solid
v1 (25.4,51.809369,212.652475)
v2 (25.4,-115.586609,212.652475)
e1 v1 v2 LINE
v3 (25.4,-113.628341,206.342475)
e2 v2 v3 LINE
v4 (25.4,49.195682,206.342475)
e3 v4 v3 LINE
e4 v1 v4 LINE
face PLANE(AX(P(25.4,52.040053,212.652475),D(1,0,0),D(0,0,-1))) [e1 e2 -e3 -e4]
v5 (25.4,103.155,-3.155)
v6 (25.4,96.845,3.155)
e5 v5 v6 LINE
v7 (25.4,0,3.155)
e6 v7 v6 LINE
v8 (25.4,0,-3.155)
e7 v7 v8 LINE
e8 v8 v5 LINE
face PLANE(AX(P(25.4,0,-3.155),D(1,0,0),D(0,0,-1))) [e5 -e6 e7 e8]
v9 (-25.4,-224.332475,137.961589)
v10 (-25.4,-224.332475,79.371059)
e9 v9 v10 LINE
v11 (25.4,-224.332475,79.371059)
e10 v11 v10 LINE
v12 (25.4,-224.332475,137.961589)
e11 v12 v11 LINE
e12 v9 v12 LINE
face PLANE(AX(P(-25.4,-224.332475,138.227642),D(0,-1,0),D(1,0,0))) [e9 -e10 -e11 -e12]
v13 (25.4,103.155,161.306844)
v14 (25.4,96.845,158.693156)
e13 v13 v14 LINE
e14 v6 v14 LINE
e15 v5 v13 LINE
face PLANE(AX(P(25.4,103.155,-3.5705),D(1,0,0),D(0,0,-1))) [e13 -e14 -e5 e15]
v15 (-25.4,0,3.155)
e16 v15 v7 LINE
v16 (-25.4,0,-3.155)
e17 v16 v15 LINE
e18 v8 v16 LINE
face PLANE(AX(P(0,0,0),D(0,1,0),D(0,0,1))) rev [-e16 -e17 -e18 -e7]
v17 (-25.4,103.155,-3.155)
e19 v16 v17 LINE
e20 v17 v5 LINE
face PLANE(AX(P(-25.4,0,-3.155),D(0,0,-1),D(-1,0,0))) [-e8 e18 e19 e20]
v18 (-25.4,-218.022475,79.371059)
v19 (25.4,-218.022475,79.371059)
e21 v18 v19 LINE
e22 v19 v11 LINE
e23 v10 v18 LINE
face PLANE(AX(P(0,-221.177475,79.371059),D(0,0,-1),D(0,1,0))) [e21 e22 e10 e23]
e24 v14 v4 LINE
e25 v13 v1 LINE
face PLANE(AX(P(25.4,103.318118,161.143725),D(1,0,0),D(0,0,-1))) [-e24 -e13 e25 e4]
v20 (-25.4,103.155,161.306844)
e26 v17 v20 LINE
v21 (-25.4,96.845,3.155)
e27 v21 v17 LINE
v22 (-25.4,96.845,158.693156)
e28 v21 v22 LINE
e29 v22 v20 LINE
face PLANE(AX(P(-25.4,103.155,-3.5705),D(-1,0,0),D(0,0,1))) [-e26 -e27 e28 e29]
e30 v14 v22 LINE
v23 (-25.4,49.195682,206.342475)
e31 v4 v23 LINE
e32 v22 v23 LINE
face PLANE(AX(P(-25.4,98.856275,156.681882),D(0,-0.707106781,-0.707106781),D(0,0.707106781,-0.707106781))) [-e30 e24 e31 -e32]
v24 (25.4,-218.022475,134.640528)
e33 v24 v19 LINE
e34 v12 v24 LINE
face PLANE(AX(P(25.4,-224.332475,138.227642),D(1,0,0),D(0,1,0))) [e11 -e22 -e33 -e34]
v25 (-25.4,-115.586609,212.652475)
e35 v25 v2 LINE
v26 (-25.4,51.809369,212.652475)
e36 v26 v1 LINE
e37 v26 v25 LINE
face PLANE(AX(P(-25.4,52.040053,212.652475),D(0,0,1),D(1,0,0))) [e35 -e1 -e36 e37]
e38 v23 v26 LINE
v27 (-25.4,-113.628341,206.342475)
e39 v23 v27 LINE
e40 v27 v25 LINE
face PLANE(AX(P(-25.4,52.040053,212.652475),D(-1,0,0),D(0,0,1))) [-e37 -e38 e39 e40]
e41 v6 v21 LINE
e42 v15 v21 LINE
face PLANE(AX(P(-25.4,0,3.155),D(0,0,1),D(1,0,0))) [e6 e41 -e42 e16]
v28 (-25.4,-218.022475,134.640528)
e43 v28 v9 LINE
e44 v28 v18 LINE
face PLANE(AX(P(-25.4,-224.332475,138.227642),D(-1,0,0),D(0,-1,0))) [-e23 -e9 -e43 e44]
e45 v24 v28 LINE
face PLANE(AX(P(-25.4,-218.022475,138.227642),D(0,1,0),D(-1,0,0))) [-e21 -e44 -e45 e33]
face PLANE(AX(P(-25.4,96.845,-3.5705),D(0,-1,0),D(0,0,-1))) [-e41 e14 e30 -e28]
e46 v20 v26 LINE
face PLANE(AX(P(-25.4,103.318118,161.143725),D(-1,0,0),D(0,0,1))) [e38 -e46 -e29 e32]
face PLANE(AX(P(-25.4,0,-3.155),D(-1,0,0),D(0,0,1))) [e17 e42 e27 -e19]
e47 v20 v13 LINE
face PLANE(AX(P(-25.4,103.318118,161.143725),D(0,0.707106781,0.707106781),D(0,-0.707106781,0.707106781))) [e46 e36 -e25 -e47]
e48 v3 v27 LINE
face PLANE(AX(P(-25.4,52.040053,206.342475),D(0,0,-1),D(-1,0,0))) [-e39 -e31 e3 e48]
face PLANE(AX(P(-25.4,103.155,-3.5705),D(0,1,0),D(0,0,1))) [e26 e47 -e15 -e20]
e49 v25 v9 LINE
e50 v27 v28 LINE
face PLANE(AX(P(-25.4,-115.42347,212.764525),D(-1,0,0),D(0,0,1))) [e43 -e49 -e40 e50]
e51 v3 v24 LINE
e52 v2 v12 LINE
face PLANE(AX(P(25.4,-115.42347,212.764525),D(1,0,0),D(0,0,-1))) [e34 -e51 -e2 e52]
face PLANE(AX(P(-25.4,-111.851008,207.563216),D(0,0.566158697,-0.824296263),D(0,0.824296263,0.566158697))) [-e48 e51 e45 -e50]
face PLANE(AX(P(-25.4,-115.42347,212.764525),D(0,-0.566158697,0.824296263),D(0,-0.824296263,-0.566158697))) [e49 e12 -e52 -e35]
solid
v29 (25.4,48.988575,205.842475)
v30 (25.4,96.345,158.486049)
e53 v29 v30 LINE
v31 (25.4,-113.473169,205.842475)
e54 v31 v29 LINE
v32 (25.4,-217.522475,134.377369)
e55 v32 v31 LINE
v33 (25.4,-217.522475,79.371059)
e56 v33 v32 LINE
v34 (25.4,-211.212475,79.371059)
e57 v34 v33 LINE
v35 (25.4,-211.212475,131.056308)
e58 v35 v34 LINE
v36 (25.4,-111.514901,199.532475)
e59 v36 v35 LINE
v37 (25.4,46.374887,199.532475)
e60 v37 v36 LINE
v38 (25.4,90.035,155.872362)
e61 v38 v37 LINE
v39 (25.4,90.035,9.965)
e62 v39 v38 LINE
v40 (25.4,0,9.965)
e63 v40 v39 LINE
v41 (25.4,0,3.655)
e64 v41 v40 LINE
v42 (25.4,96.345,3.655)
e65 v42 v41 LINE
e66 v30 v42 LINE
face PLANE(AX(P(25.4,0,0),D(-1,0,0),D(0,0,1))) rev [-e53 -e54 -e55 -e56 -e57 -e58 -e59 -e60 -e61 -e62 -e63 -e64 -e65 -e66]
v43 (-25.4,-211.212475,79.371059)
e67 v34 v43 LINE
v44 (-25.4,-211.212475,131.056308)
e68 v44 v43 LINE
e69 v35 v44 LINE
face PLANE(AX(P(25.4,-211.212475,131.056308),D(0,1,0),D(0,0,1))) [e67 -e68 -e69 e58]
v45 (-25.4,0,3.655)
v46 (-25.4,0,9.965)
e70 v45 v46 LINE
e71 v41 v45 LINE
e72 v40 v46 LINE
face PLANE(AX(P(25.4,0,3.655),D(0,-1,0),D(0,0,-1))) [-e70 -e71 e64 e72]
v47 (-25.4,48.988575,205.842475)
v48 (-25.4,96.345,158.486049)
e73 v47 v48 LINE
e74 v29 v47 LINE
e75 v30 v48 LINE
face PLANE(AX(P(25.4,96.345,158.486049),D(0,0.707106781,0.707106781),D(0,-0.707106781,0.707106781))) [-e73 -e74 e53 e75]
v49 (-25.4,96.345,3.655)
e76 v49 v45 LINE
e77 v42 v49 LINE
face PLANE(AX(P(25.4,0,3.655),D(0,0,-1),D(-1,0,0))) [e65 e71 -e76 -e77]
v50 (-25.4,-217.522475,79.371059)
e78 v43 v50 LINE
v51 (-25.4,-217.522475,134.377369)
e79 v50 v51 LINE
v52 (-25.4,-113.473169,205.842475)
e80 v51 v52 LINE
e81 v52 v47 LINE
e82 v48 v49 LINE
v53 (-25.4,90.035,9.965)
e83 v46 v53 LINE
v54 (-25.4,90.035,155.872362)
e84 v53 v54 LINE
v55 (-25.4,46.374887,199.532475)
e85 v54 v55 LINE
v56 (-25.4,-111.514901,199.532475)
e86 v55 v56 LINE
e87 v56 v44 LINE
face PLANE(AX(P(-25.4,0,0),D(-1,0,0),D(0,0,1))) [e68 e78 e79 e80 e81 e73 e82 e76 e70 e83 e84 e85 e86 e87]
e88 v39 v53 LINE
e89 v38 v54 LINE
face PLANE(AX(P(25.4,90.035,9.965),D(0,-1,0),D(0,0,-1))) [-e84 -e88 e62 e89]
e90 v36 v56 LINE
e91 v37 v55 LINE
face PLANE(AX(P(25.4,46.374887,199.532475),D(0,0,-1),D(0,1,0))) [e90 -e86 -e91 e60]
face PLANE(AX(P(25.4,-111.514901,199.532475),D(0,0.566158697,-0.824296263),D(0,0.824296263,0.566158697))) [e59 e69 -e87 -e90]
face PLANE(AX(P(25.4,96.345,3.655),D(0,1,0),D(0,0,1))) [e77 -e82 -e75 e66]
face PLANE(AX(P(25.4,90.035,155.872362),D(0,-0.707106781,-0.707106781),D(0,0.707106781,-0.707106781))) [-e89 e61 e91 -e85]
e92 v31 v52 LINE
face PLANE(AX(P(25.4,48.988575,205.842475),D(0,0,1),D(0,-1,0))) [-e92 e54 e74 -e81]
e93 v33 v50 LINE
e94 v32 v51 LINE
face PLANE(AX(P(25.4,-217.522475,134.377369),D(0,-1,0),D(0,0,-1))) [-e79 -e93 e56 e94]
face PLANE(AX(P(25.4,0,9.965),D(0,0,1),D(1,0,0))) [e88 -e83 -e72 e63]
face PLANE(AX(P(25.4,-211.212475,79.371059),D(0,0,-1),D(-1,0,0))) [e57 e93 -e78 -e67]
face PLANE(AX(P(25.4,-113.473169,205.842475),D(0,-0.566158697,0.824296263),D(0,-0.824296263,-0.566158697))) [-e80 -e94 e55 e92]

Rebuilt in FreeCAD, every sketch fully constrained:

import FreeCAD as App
import Part
import Sketcher
Q = App.Units.Quantity

doc = App.newDocument("Part")
body = doc.addObject("PartDesign::Body", "Body")

# Sketch on XZ plane
sketch1 = body.newObject("Sketcher::SketchObject", "Sketch")
sketch1.AttachmentSupport = (doc.getObject("XZ_Plane"), [""])
sketch1.MapMode = "FlatFace"
sketch1.addGeometry([
    Part.LineSegment(App.Vector(-25.4, -3.155, 0), App.Vector(-25.4, 3.155, 0)),
    Part.LineSegment(App.Vector(-25.4, 3.155, 0), App.Vector(25.4, 3.155, 0)),
    Part.LineSegment(App.Vector(25.4, 3.155, 0), App.Vector(25.4, -3.155, 0)),
    Part.LineSegment(App.Vector(25.4, -3.155, 0), App.Vector(-25.4, -3.155, 0)),
], False)
sketch1.addConstraint([
    Sketcher.Constraint("Coincident", 0, 2, 1, 1),
    Sketcher.Constraint("Coincident", 1, 2, 2, 1),
    Sketcher.Constraint("Coincident", 2, 2, 3, 1),
    Sketcher.Constraint("Coincident", 3, 2, 0, 1),
    Sketcher.Constraint("Vertical", 0),
    Sketcher.Constraint("Horizontal", 1),
    Sketcher.Constraint("Vertical", 2),
    Sketcher.Constraint("Horizontal", 3),
    Sketcher.Constraint("Symmetric", 0, 2, 2, 2, -1, 1),
    Sketcher.Constraint("DistanceX", 1, 1, 1, 2, 50.8),
    Sketcher.Constraint("DistanceY", 0, 1, 0, 2, 6.31),
])

# Sketch on YZ plane
sketch2 = body.newObject("Sketcher::SketchObject", "Sketch001")
sketch2.AttachmentSupport = (doc.getObject("YZ_Plane"), [""])
sketch2.MapMode = "FlatFace"
sketch2.addGeometry([
    Part.LineSegment(App.Vector(0, 0, 0), App.Vector(100, 0, 0)),  # 0
    Part.LineSegment(App.Vector(100, 0, 0), App.Vector(100, 160, 0)),  # 1
    Part.LineSegment(App.Vector(100, 160, 0), App.Vector(50.502525, 209.497475, 0)),  # 2
    Part.LineSegment(App.Vector(50.502525, 209.497475, 0), App.Vector(-114.607475, 209.497475, 0)),  # 3
    Part.LineSegment(App.Vector(-114.607475, 209.497475, 0), App.Vector(-221.177475, 136.301059, 0)),  # 4
    Part.LineSegment(App.Vector(-221.177475, 136.301059, 0), App.Vector(-221.177475, 79.371059, 0)),  # 5
], False)
sketch2.addConstraint([
    Sketcher.Constraint("Coincident", 0, 2, 1, 1),
    Sketcher.Constraint("Coincident", 1, 2, 2, 1),
    Sketcher.Constraint("Coincident", 2, 2, 3, 1),
    Sketcher.Constraint("Coincident", 3, 2, 4, 1),
    Sketcher.Constraint("Coincident", 4, 2, 5, 1),
    Sketcher.Constraint("Horizontal", 0),
    Sketcher.Constraint("Vertical", 1),
    Sketcher.Constraint("Horizontal", 3),
    Sketcher.Constraint("Vertical", 5),
    Sketcher.Constraint("Coincident", 0, 1, -1, 1),
    Sketcher.Constraint("DistanceX", 0, 1, 0, 2, 100.0),
    Sketcher.Constraint("DistanceY", 1, 1, 1, 2, 160.0),
    Sketcher.Constraint("Angle", 2, Q("135 deg")),
    Sketcher.Constraint("Distance", 2, 70.0),
    Sketcher.Constraint("DistanceX", 3, 2, 3, 1, 165.11),
    Sketcher.Constraint("DistanceY", 5, 2, 5, 1, 56.93),
    Sketcher.Constraint("DistanceX", 4, 2, 3, 2, 106.57),
    Sketcher.Constraint("Distance", 4, 129.28604),
])
doc.recompute()

additivepipe = body.newObject("PartDesign::AdditivePipe", "AdditivePipe")
additivepipe.Profile = sketch1
additivepipe.Spine = (sketch2, ["Edge1", "Edge2", "Edge3", "Edge4", "Edge5", "Edge6"])
additivepipe.Transition = "Right corner"
body2 = doc.addObject("PartDesign::Body", "Body001")

# Sketch on YZ plane
sketch3 = body2.newObject("Sketcher::SketchObject", "Sketch002")
sketch3.AttachmentSupport = (doc.getObject("YZ_Plane001"), [""])
sketch3.MapMode = "FlatFace"
sketch3.AttachmentOffset = App.Placement(App.Vector(0, 0, -25.4), App.Rotation())
sketch3.addGeometry([
    Part.LineSegment(App.Vector(96.345, 3.655, 0), App.Vector(0, 3.655, 0)),  # 0
    Part.LineSegment(App.Vector(0, 3.655, 0), App.Vector(0, 9.965, 0)),  # 1
    Part.LineSegment(App.Vector(0, 9.965, 0), App.Vector(90.035, 9.965, 0)),  # 2
    Part.LineSegment(App.Vector(90.035, 9.965, 0), App.Vector(90.035, 155.872362, 0)),  # 3
    Part.LineSegment(App.Vector(90.035, 155.872362, 0), App.Vector(46.374887, 199.532475, 0)),  # 4
    Part.LineSegment(App.Vector(46.374887, 199.532475, 0), App.Vector(-111.514901, 199.532475, 0)),  # 5
    Part.LineSegment(App.Vector(-111.514901, 199.532475, 0), App.Vector(-211.212475, 131.056308, 0)),  # 6
    Part.LineSegment(App.Vector(-211.212475, 131.056308, 0), App.Vector(-211.212475, 79.371059, 0)),  # 7
    Part.LineSegment(App.Vector(-211.212475, 79.371059, 0), App.Vector(-217.522475, 79.371059, 0)),  # 8
    Part.LineSegment(App.Vector(-217.522475, 79.371059, 0), App.Vector(-217.522475, 134.377369, 0)),  # 9
    Part.LineSegment(App.Vector(-217.522475, 134.377369, 0), App.Vector(-113.473169, 205.842475, 0)),  # 10
    Part.LineSegment(App.Vector(-113.473169, 205.842475, 0), App.Vector(48.988575, 205.842475, 0)),  # 11
    Part.LineSegment(App.Vector(48.988575, 205.842475, 0), App.Vector(96.345, 158.486049, 0)),  # 12
    Part.LineSegment(App.Vector(96.345, 158.486049, 0), App.Vector(96.345, 3.655, 0)),  # 13
], False)
sketch3.addConstraint([
    Sketcher.Constraint("Coincident", 0, 2, 1, 1),
    Sketcher.Constraint("Coincident", 1, 2, 2, 1),
    Sketcher.Constraint("Coincident", 2, 2, 3, 1),
    Sketcher.Constraint("Coincident", 3, 2, 4, 1),
    Sketcher.Constraint("Coincident", 4, 2, 5, 1),
    Sketcher.Constraint("Coincident", 5, 2, 6, 1),
    Sketcher.Constraint("Coincident", 6, 2, 7, 1),
    Sketcher.Constraint("Coincident", 7, 2, 8, 1),
    Sketcher.Constraint("Coincident", 8, 2, 9, 1),
    Sketcher.Constraint("Coincident", 9, 2, 10, 1),
    Sketcher.Constraint("Coincident", 10, 2, 11, 1),
    Sketcher.Constraint("Coincident", 11, 2, 12, 1),
    Sketcher.Constraint("Coincident", 12, 2, 13, 1),
    Sketcher.Constraint("Coincident", 13, 2, 0, 1),
    Sketcher.Constraint("Horizontal", 0),
    Sketcher.Constraint("Vertical", 1),
    Sketcher.Constraint("Horizontal", 2),
    Sketcher.Constraint("Vertical", 3),
    Sketcher.Constraint("Horizontal", 5),
    Sketcher.Constraint("Vertical", 7),
    Sketcher.Constraint("Horizontal", 8),
    Sketcher.Constraint("Vertical", 9),
    Sketcher.Constraint("Horizontal", 11),
    Sketcher.Constraint("Vertical", 13),
    Sketcher.Constraint("PointOnObject", 0, 2, -2),
    Sketcher.Constraint("Parallel", 6, 10),
    Sketcher.Constraint("Parallel", 4, 12),
    Sketcher.Constraint("Equal", 8, 1),
    Sketcher.Constraint("Angle", 4, Q("135 deg")),
    Sketcher.Constraint("DistanceX", 8, 2, 8, 1, 6.31),
    Sketcher.Constraint("DistanceX", 0, 2, 0, 1, 96.345),
    Sketcher.Constraint("DistanceX", 2, 1, 2, 2, 90.035),
    Sketcher.Constraint("DistanceY", 5, 2, 10, 2, 6.31),
    Sketcher.Constraint("DistanceY", -1, 1, 0, 2, 3.655),
    Sketcher.Constraint("Distance", 12, 66.972099),
    Sketcher.Constraint("DistanceY", 3, 1, 3, 2, 145.907362),
    Sketcher.Constraint("DistanceY", 7, 2, 7, 1, 51.685249),
    Sketcher.Constraint("DistanceY", 9, 1, 9, 2, 55.006311),
    Sketcher.Constraint("DistanceY", 13, 2, 13, 1, 154.831049),
    Sketcher.Constraint("DistanceX", 5, 2, -1, 1, 111.514901),
    Sketcher.Constraint("DistanceX", 11, 1, 11, 2, 162.461744),
    Sketcher.Constraint("DistanceY", -1, 1, 7, 2, 79.371059),
])
pad1 = body2.newObject("PartDesign::Pad", "Pad")
pad1.Profile = sketch3
pad1.Length = 50.8

doc.recompute()
